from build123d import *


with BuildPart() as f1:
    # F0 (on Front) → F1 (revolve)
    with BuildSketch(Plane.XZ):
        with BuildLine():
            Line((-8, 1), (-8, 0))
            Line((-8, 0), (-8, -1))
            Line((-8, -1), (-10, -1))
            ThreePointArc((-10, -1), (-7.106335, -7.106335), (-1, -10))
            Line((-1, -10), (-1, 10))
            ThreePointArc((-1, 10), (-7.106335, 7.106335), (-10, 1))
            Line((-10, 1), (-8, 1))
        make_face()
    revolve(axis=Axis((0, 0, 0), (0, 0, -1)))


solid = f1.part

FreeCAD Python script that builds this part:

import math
import FreeCAD as App
import Part
import Sketcher

V = App.Vector

doc = App.newDocument("Part")
body = doc.addObject("PartDesign::Body", "Body")

# Sketch on XZ plane
sketch1 = body.newObject("Sketcher::SketchObject", "Sketch")
sketch1.AttachmentSupport = (doc.getObject("XZ_Plane"), [""])
sketch1.MapMode = "FlatFace"
sketch1.addGeometry([
    Part.LineSegment(V(-8, 1, 0), V(-8, -1, 0)),  # 0
    Part.LineSegment(V(-8, -1, 0), V(-10, -1, 0)),  # 1
    Part.ArcOfCircle(Part.Circle(V(0.000001, 0.000001, 0), V(0, 0, 1), 10.049877), math.radians(-174.289402), math.radians(-95.710598)),  # 2
    Part.LineSegment(V(-1, -10, 0), V(-1, 10, 0)),  # 3
    Part.ArcOfCircle(Part.Circle(V(0.000001, -0.000001, 0), V(0, 0, 1), 10.049877), math.radians(95.710598), math.radians(174.289402)),  # 4
    Part.LineSegment(V(-10, 1, 0), V(-8, 1, 0)),  # 5
], False)
sketch1.addConstraint([
    Sketcher.Constraint("Coincident", 0, 2, 1, 1),
    Sketcher.Constraint("Coincident", 1, 2, 2, 1),
    Sketcher.Constraint("Coincident", 2, 2, 3, 1),
    Sketcher.Constraint("Coincident", 3, 2, 4, 1),
    Sketcher.Constraint("Coincident", 4, 2, 5, 1),
    Sketcher.Constraint("Coincident", 5, 2, 0, 1),
    Sketcher.Constraint("Vertical", 0),
    Sketcher.Constraint("Horizontal", 1),
    Sketcher.Constraint("Vertical", 3),
    Sketcher.Constraint("Horizontal", 5),
    Sketcher.Constraint("Coincident", 2, 3, -1, 1),
    Sketcher.Constraint("Coincident", 4, 3, -1, 1),
    Sketcher.Constraint("Equal", 2, 4),
    Sketcher.Constraint("Vertical", 1, 2, 4, 2),
    Sketcher.Constraint("Equal", 5, 0),
    Sketcher.Constraint("DistanceX", 1, 2, 1, 1, 2.0),
    Sketcher.Constraint("DistanceY", 3, 1, 3, 2, 20.0),
    Sketcher.Constraint("DistanceX", 0, 2, -1, 1, 8.0),
])
revolution = body.newObject("PartDesign::Revolution", "Revolution")
revolution.Profile = sketch1
revolution.ReferenceAxis = (sketch1, ["V_Axis"])
revolution.Angle = 360

doc.recompute()
